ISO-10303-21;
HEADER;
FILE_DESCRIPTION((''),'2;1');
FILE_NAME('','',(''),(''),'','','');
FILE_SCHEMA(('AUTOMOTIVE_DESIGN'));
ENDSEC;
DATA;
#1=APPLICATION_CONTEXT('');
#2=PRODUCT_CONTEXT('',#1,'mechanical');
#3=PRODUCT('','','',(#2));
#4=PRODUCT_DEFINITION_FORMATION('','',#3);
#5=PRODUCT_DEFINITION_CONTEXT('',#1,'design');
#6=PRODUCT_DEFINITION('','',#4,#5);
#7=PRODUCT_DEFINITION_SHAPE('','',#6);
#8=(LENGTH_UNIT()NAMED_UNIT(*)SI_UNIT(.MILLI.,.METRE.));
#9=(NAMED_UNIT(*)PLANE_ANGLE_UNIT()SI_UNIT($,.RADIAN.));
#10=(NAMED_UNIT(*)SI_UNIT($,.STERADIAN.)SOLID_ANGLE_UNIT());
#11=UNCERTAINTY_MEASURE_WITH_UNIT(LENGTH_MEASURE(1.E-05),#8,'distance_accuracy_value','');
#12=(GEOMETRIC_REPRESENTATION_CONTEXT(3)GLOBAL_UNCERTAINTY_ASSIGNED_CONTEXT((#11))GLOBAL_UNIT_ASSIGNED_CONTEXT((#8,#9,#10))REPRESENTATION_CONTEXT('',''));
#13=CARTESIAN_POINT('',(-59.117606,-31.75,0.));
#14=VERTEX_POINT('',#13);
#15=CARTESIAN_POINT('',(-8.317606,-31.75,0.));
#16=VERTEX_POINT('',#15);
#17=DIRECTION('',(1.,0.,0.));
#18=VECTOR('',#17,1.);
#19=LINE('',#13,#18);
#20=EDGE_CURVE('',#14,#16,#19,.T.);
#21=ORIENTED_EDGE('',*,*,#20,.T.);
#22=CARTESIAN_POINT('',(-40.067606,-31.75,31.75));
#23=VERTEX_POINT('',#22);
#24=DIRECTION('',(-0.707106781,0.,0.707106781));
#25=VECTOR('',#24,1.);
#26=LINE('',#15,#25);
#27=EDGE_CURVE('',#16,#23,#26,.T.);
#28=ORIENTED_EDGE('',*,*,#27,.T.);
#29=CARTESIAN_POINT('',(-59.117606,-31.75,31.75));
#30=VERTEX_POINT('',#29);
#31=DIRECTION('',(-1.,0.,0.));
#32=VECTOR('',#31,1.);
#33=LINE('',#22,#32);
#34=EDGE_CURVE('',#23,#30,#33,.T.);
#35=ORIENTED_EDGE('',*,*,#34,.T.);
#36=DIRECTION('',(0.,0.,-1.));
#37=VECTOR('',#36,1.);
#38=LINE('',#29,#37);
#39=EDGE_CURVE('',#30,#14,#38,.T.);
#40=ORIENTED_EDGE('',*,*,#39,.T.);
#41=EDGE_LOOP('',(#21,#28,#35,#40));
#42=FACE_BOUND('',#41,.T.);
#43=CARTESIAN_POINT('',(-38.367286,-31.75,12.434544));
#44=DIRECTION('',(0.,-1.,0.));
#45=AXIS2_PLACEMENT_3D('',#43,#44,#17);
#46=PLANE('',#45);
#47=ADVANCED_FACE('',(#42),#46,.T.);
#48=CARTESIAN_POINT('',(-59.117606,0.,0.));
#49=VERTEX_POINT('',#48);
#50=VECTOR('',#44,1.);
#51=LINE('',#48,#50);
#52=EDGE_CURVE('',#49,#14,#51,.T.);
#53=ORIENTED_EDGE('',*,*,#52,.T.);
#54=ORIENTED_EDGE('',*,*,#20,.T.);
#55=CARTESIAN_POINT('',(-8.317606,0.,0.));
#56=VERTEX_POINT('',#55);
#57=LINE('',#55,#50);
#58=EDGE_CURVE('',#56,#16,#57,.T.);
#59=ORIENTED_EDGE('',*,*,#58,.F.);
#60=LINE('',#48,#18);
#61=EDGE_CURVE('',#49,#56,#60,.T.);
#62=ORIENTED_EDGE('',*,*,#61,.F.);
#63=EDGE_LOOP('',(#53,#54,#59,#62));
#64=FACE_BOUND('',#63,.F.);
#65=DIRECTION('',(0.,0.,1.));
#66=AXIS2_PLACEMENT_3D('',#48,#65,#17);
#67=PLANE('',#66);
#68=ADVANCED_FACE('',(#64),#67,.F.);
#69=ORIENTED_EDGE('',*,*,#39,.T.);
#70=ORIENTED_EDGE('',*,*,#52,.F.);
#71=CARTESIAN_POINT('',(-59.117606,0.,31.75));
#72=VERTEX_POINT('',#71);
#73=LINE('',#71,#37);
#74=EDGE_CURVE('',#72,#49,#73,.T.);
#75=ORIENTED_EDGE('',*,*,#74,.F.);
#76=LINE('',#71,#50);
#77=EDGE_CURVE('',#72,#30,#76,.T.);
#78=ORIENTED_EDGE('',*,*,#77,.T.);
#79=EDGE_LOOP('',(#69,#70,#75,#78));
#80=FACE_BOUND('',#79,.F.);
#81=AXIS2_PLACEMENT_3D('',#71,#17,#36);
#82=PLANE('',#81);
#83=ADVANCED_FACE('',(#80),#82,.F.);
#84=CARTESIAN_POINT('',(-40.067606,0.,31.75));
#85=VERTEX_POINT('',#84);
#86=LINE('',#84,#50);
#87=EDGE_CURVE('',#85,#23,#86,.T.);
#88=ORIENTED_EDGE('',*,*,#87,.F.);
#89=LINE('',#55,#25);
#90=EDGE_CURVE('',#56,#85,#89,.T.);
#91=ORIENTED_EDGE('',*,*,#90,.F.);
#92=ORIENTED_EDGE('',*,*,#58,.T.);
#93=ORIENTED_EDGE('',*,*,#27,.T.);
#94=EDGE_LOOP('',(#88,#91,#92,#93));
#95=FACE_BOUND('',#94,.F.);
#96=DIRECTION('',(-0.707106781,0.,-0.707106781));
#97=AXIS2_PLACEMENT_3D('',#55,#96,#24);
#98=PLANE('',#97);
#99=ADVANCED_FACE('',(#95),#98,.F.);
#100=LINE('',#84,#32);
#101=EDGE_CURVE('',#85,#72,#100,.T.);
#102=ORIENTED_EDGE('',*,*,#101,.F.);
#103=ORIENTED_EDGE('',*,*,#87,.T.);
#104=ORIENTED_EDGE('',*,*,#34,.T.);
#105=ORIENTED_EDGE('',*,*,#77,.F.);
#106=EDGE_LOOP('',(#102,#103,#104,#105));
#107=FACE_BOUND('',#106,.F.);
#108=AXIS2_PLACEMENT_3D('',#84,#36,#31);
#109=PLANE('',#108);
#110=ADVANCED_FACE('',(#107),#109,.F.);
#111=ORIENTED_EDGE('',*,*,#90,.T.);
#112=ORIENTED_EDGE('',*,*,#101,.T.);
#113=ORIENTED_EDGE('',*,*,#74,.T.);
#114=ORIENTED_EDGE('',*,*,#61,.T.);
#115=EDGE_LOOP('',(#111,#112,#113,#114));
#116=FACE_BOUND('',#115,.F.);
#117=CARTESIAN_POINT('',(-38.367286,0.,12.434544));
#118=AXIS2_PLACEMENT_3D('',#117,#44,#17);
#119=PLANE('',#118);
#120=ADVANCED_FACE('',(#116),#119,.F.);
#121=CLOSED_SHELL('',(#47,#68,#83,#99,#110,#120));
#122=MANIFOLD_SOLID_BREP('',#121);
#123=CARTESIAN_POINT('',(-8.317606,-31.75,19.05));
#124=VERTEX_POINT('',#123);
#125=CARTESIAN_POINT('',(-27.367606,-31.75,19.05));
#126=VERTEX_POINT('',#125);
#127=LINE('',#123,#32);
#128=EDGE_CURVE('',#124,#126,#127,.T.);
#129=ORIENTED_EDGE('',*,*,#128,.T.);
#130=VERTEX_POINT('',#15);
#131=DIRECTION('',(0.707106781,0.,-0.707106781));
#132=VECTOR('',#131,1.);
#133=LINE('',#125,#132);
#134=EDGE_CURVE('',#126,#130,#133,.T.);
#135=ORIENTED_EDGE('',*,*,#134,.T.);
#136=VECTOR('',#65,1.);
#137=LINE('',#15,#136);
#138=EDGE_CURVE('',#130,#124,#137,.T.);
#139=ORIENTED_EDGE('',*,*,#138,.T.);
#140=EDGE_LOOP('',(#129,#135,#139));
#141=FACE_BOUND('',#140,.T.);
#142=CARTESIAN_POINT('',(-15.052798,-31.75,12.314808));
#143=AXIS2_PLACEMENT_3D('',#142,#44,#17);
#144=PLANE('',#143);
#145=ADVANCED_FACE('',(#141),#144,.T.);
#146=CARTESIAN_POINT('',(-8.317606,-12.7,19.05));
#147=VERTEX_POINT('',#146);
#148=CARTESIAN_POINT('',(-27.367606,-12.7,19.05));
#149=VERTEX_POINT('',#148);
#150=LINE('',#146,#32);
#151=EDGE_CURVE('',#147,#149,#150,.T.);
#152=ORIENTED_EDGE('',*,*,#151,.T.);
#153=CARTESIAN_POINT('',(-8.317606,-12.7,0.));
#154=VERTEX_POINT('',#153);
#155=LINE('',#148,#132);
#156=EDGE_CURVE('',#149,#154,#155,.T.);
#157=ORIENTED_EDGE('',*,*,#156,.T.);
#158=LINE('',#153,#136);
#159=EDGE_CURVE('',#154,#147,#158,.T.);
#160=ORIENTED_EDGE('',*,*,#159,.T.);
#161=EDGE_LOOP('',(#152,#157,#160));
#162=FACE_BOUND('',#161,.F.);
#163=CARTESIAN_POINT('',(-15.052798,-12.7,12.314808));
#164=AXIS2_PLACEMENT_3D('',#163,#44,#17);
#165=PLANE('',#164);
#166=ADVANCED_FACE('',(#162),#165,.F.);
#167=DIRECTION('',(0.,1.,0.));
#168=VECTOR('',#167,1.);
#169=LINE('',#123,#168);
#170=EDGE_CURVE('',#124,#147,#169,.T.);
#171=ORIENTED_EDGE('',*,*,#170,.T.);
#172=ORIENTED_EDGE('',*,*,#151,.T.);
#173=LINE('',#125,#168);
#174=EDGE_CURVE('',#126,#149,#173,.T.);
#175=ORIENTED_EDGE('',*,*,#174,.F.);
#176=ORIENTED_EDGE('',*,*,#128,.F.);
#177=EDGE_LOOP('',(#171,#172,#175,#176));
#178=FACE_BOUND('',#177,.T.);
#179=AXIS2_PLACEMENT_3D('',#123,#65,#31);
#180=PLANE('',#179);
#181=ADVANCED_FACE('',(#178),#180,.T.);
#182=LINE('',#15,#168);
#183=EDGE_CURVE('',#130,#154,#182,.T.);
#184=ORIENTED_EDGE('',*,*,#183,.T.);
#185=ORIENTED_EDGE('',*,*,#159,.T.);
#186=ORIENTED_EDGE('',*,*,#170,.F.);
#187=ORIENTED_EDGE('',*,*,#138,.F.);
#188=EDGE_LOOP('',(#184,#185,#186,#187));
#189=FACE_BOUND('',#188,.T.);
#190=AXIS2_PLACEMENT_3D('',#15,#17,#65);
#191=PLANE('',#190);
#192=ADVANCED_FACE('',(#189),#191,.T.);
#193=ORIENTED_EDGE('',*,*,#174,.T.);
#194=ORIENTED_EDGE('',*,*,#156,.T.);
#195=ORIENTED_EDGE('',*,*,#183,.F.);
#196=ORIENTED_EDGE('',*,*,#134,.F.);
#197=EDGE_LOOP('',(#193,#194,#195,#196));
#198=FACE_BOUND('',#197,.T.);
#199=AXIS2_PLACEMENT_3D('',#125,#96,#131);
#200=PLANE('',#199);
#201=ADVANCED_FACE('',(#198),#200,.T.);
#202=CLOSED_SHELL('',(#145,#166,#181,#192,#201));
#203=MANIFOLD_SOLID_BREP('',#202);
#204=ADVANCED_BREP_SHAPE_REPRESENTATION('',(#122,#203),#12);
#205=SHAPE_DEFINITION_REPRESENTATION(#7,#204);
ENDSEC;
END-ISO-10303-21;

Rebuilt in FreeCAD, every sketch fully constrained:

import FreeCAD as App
import Part
import Sketcher
from FreeCAD import Vector
Q = App.Units.Quantity

doc = App.newDocument("Part")
params = doc.addObject("Spreadsheet::Sheet", "Params")
for row, (alias, value) in enumerate([
    ("sketch1_width", "2 in"),
    ("sketch1_width2", "0.75 in"),
    ("pad1_length", "1.25 in"),
    ("sketch2_width", "0.75 in"),
    ("pad2_length", "0.75 in"),
], start=1):
    params.set(f"A{row}", alias)
    params.set(f"B{row}", "=" + value)
    params.setAlias(f"B{row}", alias)

body = doc.addObject("PartDesign::Body", "Body")

# Sketch on XZ plane
sketch1 = body.newObject("Sketcher::SketchObject", "Sketch")
sketch1.AttachmentSupport = (doc.getObject("XZ_Plane"), [""])
sketch1.MapMode = "FlatFace"
sketch1.addGeometry([
    Part.LineSegment(Vector(-59, 32, 0), Vector(-59, 0, 0)),
    Part.LineSegment(Vector(-59, 0, 0), Vector(-8, 0, 0)),
    Part.LineSegment(Vector(-8, 0, 0), Vector(-40, 32, 0)),
    Part.LineSegment(Vector(-40, 32, 0), Vector(-59, 32, 0)),
], False)
sketch1.addConstraint([
    Sketcher.Constraint("Coincident", 0, 2, 1, 1),
    Sketcher.Constraint("Coincident", 1, 2, 2, 1),
    Sketcher.Constraint("Coincident", 2, 2, 3, 1),
    Sketcher.Constraint("Coincident", 3, 2, 0, 1),
    Sketcher.Constraint("Vertical", 0),
    Sketcher.Constraint("Horizontal", 1),
    Sketcher.Constraint("Horizontal", 3),
    Sketcher.Constraint("PointOnObject", 0, 2, -1),
    Sketcher.Constraint("DistanceX", 1, 1, 1, 2, Q("2 in")),
    Sketcher.Constraint("Angle", 2, Q("135 deg")),
    Sketcher.Constraint("DistanceX", 3, 2, 3, 1, Q("0.75 in")),
    Sketcher.Constraint("DistanceX", 0, 2, -1, 1, Q("59.117606 mm")),
])
sketch1.setExpression("Constraints[8]", "Params.sketch1_width")
sketch1.setExpression("Constraints[10]", "Params.sketch1_width2")
pad1 = body.newObject("PartDesign::Pad", "Pad")
pad1.Profile = sketch1
pad1.setExpression("Length", "Params.pad1_length")
body2 = doc.addObject("PartDesign::Body", "Body001")

# Sketch on XZ plane
sketch2 = body2.newObject("Sketcher::SketchObject", "Sketch001")
sketch2.AttachmentSupport = (doc.getObject("XZ_Plane001"), [""])
sketch2.MapMode = "FlatFace"
sketch2.AttachmentOffset = App.Placement(Vector(0, 0, 1.25 * 25.4), App.Rotation())
sketch2.addGeometry([
    Part.LineSegment(Vector(-8, 19, 0), Vector(-27, 19, 0)),
    Part.LineSegment(Vector(-27, 19, 0), Vector(-8, 0, 0)),
    Part.LineSegment(Vector(-8, 0, 0), Vector(-8, 19, 0)),
], False)
sketch2.addConstraint([
    Sketcher.Constraint("Coincident", 0, 2, 1, 1),
    Sketcher.Constraint("Coincident", 1, 2, 2, 1),
    Sketcher.Constraint("Coincident", 2, 2, 0, 1),
    Sketcher.Constraint("Horizontal", 0),
    Sketcher.Constraint("Vertical", 2),
    Sketcher.Constraint("PointOnObject", 1, 2, -1),
    Sketcher.Constraint("Equal", 0, 2),
    Sketcher.Constraint("DistanceX", 0, 2, 0, 1, Q("0.75 in")),
    Sketcher.Constraint("DistanceX", 0, 2, -1, 1, Q("27.367606 mm")),
])
sketch2.setExpression("Constraints[7]", "Params.sketch2_width")
pad2 = body2.newObject("PartDesign::Pad", "Pad001")
pad2.Profile = sketch2
pad2.setExpression("Length", "Params.pad2_length")
pad2.Reversed = True

doc.recompute()
